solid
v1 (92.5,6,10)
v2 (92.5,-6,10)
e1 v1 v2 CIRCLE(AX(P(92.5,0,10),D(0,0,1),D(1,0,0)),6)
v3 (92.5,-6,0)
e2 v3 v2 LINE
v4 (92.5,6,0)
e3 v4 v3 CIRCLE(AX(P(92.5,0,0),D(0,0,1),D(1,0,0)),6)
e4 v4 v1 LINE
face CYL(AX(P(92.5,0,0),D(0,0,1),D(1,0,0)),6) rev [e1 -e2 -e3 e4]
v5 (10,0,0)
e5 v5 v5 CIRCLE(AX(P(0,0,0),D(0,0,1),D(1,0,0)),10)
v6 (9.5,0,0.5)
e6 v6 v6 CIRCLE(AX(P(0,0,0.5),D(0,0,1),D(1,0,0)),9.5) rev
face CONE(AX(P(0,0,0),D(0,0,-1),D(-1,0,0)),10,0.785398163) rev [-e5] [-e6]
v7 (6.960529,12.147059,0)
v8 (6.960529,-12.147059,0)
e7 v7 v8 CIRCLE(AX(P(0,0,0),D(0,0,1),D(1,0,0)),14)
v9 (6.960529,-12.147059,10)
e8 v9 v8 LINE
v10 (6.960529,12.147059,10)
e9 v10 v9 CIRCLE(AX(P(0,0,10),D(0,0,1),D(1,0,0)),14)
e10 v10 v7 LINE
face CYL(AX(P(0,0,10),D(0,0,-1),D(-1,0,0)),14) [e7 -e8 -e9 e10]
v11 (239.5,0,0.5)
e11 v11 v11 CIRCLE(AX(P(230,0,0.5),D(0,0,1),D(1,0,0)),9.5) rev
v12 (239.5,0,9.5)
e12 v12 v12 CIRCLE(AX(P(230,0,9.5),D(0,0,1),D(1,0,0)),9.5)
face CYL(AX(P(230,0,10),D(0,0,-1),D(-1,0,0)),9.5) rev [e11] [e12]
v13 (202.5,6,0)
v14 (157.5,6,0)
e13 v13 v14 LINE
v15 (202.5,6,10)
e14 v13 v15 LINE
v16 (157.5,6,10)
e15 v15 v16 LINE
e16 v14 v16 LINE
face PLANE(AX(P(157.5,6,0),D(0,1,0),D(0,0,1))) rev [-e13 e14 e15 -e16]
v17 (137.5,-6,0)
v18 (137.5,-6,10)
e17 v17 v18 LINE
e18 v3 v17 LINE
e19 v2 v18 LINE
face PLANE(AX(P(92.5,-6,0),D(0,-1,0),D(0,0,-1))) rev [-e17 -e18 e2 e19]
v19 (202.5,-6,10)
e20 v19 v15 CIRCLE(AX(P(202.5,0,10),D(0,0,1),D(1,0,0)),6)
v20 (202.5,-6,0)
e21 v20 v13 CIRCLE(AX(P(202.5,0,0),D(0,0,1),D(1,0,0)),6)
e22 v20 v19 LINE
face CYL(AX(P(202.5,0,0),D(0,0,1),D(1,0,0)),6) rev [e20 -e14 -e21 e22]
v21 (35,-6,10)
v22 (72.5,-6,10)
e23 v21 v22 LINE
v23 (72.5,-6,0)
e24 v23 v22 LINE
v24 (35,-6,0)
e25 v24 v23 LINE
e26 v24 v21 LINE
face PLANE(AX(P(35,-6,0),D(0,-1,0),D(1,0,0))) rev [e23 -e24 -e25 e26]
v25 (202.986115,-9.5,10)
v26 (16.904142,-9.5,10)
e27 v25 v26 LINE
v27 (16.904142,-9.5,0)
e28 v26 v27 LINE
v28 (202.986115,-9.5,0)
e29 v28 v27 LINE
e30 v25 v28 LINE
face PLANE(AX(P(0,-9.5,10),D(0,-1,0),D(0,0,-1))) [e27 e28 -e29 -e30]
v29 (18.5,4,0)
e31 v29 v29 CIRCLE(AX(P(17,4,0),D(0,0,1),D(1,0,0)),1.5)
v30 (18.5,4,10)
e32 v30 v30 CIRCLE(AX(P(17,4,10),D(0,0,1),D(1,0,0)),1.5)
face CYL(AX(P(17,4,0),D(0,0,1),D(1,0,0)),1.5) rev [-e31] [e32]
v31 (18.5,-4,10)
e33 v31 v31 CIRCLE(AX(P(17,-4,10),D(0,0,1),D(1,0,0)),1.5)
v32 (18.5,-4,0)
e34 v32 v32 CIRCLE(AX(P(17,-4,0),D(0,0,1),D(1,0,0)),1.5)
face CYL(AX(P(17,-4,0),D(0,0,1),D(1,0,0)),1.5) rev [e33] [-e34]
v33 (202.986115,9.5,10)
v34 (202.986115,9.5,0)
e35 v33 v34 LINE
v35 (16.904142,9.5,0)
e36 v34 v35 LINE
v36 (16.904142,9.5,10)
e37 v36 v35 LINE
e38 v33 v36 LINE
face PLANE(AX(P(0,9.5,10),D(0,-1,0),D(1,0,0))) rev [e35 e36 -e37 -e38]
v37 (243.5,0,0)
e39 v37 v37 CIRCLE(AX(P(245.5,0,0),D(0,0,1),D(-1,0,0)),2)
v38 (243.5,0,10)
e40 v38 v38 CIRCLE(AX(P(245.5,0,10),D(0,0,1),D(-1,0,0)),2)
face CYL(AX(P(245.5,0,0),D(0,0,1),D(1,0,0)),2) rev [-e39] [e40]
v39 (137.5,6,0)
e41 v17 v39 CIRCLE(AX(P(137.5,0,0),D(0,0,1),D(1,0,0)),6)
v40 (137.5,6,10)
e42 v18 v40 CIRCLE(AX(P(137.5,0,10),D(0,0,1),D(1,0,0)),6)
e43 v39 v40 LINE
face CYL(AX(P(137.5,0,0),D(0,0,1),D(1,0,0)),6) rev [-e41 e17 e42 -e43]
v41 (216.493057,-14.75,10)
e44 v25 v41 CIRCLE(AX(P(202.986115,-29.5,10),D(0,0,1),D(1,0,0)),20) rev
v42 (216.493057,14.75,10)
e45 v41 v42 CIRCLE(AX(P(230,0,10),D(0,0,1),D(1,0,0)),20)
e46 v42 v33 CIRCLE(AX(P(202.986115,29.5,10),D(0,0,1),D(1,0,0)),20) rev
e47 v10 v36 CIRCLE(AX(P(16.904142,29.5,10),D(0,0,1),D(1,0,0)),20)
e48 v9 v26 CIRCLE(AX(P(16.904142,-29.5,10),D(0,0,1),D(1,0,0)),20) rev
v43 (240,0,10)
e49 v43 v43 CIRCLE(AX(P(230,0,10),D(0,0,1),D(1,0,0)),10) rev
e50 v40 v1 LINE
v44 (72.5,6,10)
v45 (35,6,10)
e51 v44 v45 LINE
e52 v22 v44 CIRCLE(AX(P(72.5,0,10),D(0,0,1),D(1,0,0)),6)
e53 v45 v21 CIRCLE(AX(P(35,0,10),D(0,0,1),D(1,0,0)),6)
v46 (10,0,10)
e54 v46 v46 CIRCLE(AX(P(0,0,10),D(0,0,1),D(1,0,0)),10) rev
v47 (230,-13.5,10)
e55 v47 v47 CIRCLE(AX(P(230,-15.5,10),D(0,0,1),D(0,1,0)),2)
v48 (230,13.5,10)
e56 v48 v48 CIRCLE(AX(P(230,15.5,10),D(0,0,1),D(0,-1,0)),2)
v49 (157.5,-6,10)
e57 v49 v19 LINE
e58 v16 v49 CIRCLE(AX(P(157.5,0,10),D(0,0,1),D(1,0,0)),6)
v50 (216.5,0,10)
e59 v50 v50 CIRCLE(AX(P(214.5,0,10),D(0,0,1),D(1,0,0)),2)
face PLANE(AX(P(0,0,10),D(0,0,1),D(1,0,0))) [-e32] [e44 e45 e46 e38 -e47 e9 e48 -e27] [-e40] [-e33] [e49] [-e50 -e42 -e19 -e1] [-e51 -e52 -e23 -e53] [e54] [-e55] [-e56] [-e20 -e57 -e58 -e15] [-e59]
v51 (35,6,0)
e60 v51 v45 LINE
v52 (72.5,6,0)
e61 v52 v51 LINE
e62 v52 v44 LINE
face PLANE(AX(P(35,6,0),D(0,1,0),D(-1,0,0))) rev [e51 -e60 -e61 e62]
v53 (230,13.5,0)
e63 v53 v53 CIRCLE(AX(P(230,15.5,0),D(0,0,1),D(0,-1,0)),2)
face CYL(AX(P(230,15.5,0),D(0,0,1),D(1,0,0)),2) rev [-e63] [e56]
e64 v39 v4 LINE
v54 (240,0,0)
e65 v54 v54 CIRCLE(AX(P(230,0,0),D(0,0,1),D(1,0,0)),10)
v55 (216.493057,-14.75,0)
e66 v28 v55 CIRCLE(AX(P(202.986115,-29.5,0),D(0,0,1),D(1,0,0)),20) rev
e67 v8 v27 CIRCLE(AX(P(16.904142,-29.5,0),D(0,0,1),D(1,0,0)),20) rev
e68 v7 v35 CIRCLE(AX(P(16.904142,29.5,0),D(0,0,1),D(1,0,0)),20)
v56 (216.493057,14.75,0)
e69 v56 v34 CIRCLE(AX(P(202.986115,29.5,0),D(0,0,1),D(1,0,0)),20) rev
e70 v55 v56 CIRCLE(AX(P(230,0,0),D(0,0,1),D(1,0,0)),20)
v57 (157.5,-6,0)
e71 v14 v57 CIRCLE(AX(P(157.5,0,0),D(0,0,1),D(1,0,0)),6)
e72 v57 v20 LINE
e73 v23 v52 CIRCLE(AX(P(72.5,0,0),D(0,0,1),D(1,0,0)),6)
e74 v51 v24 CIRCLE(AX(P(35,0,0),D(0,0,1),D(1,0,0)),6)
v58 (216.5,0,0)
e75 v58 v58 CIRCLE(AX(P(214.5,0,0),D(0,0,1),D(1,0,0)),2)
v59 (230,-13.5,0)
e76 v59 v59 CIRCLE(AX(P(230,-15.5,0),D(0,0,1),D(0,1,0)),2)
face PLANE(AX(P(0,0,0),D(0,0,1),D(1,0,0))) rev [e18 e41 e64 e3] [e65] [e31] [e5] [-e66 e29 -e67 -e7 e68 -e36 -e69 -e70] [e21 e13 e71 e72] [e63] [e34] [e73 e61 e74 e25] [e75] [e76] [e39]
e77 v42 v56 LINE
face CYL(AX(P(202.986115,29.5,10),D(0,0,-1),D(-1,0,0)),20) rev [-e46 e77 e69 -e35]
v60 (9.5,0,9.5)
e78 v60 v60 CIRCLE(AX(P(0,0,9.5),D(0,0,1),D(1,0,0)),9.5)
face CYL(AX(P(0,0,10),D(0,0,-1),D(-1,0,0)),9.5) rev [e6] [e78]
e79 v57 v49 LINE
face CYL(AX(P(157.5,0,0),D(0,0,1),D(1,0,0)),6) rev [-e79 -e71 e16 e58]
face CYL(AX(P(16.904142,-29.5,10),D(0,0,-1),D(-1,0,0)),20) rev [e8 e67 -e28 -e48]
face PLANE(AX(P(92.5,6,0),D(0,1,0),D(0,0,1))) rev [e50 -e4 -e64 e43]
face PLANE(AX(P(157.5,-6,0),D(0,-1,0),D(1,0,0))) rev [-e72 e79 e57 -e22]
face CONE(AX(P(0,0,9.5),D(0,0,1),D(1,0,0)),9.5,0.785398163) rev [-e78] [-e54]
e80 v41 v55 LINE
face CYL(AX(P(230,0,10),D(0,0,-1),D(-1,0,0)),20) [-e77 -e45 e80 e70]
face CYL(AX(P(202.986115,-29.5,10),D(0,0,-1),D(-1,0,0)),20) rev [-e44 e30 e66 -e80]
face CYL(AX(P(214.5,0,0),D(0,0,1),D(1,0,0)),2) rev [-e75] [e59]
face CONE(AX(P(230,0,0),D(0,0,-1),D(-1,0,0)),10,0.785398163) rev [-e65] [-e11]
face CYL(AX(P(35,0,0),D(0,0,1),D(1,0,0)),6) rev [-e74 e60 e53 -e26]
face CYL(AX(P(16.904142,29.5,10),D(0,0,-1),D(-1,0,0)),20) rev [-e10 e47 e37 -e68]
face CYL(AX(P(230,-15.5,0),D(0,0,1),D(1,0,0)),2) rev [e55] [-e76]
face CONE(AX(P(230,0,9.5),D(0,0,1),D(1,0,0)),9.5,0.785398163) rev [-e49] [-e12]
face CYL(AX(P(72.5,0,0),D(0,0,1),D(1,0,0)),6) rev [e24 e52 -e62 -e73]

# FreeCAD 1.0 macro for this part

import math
import FreeCAD as App
import Part
import Sketcher
Q = App.Units.Quantity


def edges_at(feature, points):
    """Names of the edges that pass closest to the given points."""
    edges = feature.Shape.Edges
    near = lambda p: min(range(len(edges)), key=lambda i: edges[i].distToShape(Part.Vertex(*p))[0])
    return sorted({f"Edge{near(p) + 1}" for p in points})

doc = App.newDocument("Part")
body = doc.addObject("PartDesign::Body", "Body")

# Sketch on XY plane
sketch1 = doc.addObject("Sketcher::SketchObject", "Sketch")
body.addObject(sketch1)
sketch1.AttachmentSupport = (doc.XY_Plane, [""])
sketch1.MapMode = "FlatFace"
sketch1.addGeometry([
    Part.ArcOfCircle(Part.Circle(App.Vector(203, -29.5, 0), App.Vector(0, 0, 1), 20), math.radians(48), math.radians(90)),  # 0
    Part.ArcOfCircle(Part.Circle(App.Vector(230, 0, 0), App.Vector(0, 0, 1), 20), math.radians(-132), math.radians(132)),  # 1
    Part.ArcOfCircle(Part.Circle(App.Vector(203, 29.5, 0), App.Vector(0, 0, 1), 20), math.radians(-90), math.radians(-48)),  # 2
    Part.LineSegment(App.Vector(203, 9.5, 0), App.Vector(16.9, 9.5, 0)),  # 3
    Part.ArcOfCircle(Part.Circle(App.Vector(16.9, 29.5, 0), App.Vector(0, 0, 1), 20), math.radians(-120), math.radians(-90)),  # 4
    Part.ArcOfCircle(Part.Circle(App.Vector(0, 0, 0), App.Vector(0, 0, 1), 14), math.radians(60), math.radians(91)),  # 5
    Part.ArcOfCircle(Part.Circle(App.Vector(0, 0, 0), App.Vector(0, 0, 1), 14), math.radians(91), math.radians(284)),  # 6
    Part.ArcOfCircle(Part.Circle(App.Vector(0, 0, 0), App.Vector(0, 0, 1), 14), math.radians(-75.85), math.radians(-60.19)),  # 7
    Part.ArcOfCircle(Part.Circle(App.Vector(16.9, -29.5, 0), App.Vector(0, 0, 1), 20), math.radians(90), math.radians(120)),  # 8
    Part.LineSegment(App.Vector(16.9, -9.5, 0), App.Vector(203, -9.5, 0)),  # 9
    Part.Circle(App.Vector(0, 0, 0), App.Vector(0, 0, 1), 9.5),  # 10
    Part.Circle(App.Vector(230, 0, 0), App.Vector(0, 0, 1), 9.5),  # 11
], False)
sketch1.addConstraint([
    Sketcher.Constraint("Tangent", 0, 1, 1, 1),
    Sketcher.Constraint("Tangent", 1, 2, 2, 2),
    Sketcher.Constraint("Tangent", 2, 1, 3, 1),
    Sketcher.Constraint("Tangent", 3, 2, 4, 2),
    Sketcher.Constraint("Tangent", 4, 1, 5, 1),
    Sketcher.Constraint("Tangent", 5, 2, 6, 1),
    Sketcher.Constraint("Tangent", 6, 2, 7, 1),
    Sketcher.Constraint("Tangent", 7, 2, 8, 2),
    Sketcher.Constraint("Tangent", 8, 1, 9, 1),
    Sketcher.Constraint("Tangent", 9, 2, 0, 2),
    Sketcher.Constraint("Horizontal", 3),
    Sketcher.Constraint("Horizontal", 9),
    Sketcher.Constraint("Coincident", 5, 3, -1, 1),
    Sketcher.Constraint("Coincident", 7, 3, -1, 1),
    Sketcher.Constraint("Coincident", 10, 3, -1, 1),
    Sketcher.Constraint("Coincident", 11, 3, 1, 3),
    Sketcher.Constraint("Equal", 0, 1),
    Sketcher.Constraint("Equal", 1, 2),
    Sketcher.Constraint("Equal", 2, 4),
    Sketcher.Constraint("Equal", 4, 8),
    Sketcher.Constraint("Equal", 10, 11),
    Sketcher.Constraint("Symmetric", 0, 3, 2, 3, -1),
    Sketcher.Constraint("Diameter", 10, Q("19 mm")),
    Sketcher.Constraint("Radius", 0, Q("20 mm")),
    Sketcher.Constraint("Radius", 5, Q("14 mm")),
    Sketcher.Constraint("DistanceX", -1, 1, 1, 3, Q("230 mm")),
    Sketcher.Constraint("DistanceY", 0, 3, 2, 3, Q("59 mm")),
    Sketcher.Constraint("DistanceX", 5, 2, -1, 1, Q("0.229511 mm")),
    Sketcher.Constraint("DistanceX", -1, 1, 6, 2, Q("3.423256 mm")),
])
pad1 = doc.addObject("PartDesign::Pad", "Pad")
body.addObject(pad1)
pad1.Profile = sketch1
pad1.Length = 10
doc.recompute()

chamfer = doc.addObject("PartDesign::Chamfer", "Chamfer")
body.addObject(chamfer)
chamfer.Base = (pad1, edges_at(pad1, [(-9.5, 0, 0), (-9.5, 0, 10)]))
chamfer.Size = 0.5

# Sketch on XY plane
sketch2 = doc.addObject("Sketcher::SketchObject", "Sketch001")
body.addObject(sketch2)
sketch2.AttachmentSupport = (doc.XY_Plane, [""])
sketch2.MapMode = "FlatFace"
sketch2.AttachmentOffset = App.Placement(App.Vector(0, 0, 10), App.Rotation())
sketch2.addGeometry([
    Part.LineSegment(App.Vector(92, -6, 0), App.Vector(138, -6, 0)),  # 0
    Part.ArcOfCircle(Part.Circle(App.Vector(138, 0, 0), App.Vector(0, 0, 1), 6), math.radians(-90), math.radians(90)),  # 1
    Part.LineSegment(App.Vector(138, 6, 0), App.Vector(92, 6, 0)),  # 2
    Part.ArcOfCircle(Part.Circle(App.Vector(92, 0, 0), App.Vector(0, 0, 1), 6), math.radians(90), math.radians(270)),  # 3
    Part.LineSegment(App.Vector(158, -6, 0), App.Vector(202, -6, 0)),  # 4
    Part.ArcOfCircle(Part.Circle(App.Vector(202, 0, 0), App.Vector(0, 0, 1), 6), math.radians(-90), math.radians(90)),  # 5
    Part.LineSegment(App.Vector(202, 6, 0), App.Vector(158, 6, 0)),  # 6
    Part.ArcOfCircle(Part.Circle(App.Vector(158, 0, 0), App.Vector(0, 0, 1), 6), math.radians(90), math.radians(270)),  # 7
    Part.LineSegment(App.Vector(35, -6, 0), App.Vector(72, -6, 0)),  # 8
    Part.ArcOfCircle(Part.Circle(App.Vector(72, 0, 0), App.Vector(0, 0, 1), 6), math.radians(-90), math.radians(90)),  # 9
    Part.LineSegment(App.Vector(72, 6, 0), App.Vector(35, 6, 0)),  # 10
    Part.ArcOfCircle(Part.Circle(App.Vector(35, 0, 0), App.Vector(0, 0, 1), 6), math.radians(90), math.radians(270)),  # 11
], False)
sketch2.addConstraint([
    Sketcher.Constraint("Tangent", 0, 2, 1, 1),
    Sketcher.Constraint("Tangent", 1, 2, 2, 1),
    Sketcher.Constraint("Tangent", 2, 2, 3, 1),
    Sketcher.Constraint("Tangent", 3, 2, 0, 1),
    Sketcher.Constraint("Tangent", 4, 2, 5, 1),
    Sketcher.Constraint("Tangent", 5, 2, 6, 1),
    Sketcher.Constraint("Tangent", 6, 2, 7, 1),
    Sketcher.Constraint("Tangent", 7, 2, 4, 1),
    Sketcher.Constraint("Tangent", 8, 2, 9, 1),
    Sketcher.Constraint("Tangent", 9, 2, 10, 1),
    Sketcher.Constraint("Tangent", 10, 2, 11, 1),
    Sketcher.Constraint("Tangent", 11, 2, 8, 1),
    Sketcher.Constraint("Horizontal", 0),
    Sketcher.Constraint("Horizontal", 2),
    Sketcher.Constraint("Horizontal", 4),
    Sketcher.Constraint("Horizontal", 6),
    Sketcher.Constraint("Horizontal", 8),
    Sketcher.Constraint("Horizontal", 10),
    Sketcher.Constraint("Equal", 3, 5),
    Sketcher.Constraint("Equal", 7, 9),
    Sketcher.Constraint("PointOnObject", 1, 3, -1),
    Sketcher.Constraint("PointOnObject", 5, 3, -1),
    Sketcher.Constraint("PointOnObject", 9, 3, -1),
    Sketcher.Constraint("Equal", 2, 4),
    Sketcher.Constraint("Radius", 1, Q("6 mm")),
    Sketcher.Constraint("DistanceX", 0, 1, 0, 2, Q("45 mm")),
    Sketcher.Constraint("DistanceX", 8, 1, 8, 2, Q("37.5 mm")),
    Sketcher.Constraint("DistanceX", -1, 1, 11, 3, Q("35 mm")),
    Sketcher.Constraint("DistanceX", 1, 3, 5, 3, Q("65 mm")),
    Sketcher.Constraint("DistanceX", 9, 3, 3, 3, Q("20 mm")),
])
pocket1 = doc.addObject("PartDesign::Pocket", "Pocket")
body.addObject(pocket1)
pocket1.Profile = sketch2
pocket1.Length = 10

# Sketch on XY plane
sketch3 = doc.addObject("Sketcher::SketchObject", "Sketch002")
body.addObject(sketch3)
sketch3.AttachmentSupport = (doc.XY_Plane, [""])
sketch3.MapMode = "FlatFace"
sketch3.AttachmentOffset = App.Placement(App.Vector(0, 0, 10), App.Rotation())
sketch3.addGeometry([
    Part.Circle(App.Vector(245, 0, 0), App.Vector(0, 0, 1), 2),
    Part.Circle(App.Vector(237.5, 13, 0), App.Vector(0, 0, 1), 2),
    Part.Circle(App.Vector(222.5, 13, 0), App.Vector(0, 0, 1), 2),
], False)
sketch3.addConstraint([
    Sketcher.Constraint("Equal", 0, 1),
    Sketcher.Constraint("Equal", 1, 2),
    Sketcher.Constraint("PointOnObject", 0, 3, -1),
    Sketcher.Constraint("Horizontal", 1, 3, 2, 3),
    Sketcher.Constraint("Diameter", 0, Q("4 mm")),
    Sketcher.Constraint("DistanceX", -1, 1, 0, 3, Q("245 mm")),
    Sketcher.Constraint("DistanceX", 2, 3, 1, 3, Q("15 mm")),
    Sketcher.Constraint("DistanceX", -1, 1, 1, 3, Q("237.5 mm")),
    Sketcher.Constraint("DistanceY", -1, 1, 1, 3, Q("12.990381 mm")),
])
pocket2 = doc.addObject("PartDesign::Pocket", "Pocket001")
body.addObject(pocket2)
pocket2.Profile = sketch3
pocket2.Length = 10
doc.recompute()

chamfer2 = doc.addObject("PartDesign::Chamfer", "Chamfer001")
body.addObject(chamfer2)
chamfer2.Base = (pocket2, edges_at(pocket2, [(220.5, 0, 10)]))
chamfer2.Size = 0.5

# Sketch on XY plane
sketch4 = doc.addObject("Sketcher::SketchObject", "Sketch003")
body.addObject(sketch4)
sketch4.AttachmentSupport = (doc.XY_Plane, [""])
sketch4.MapMode = "FlatFace"
sketch4.AttachmentOffset = App.Placement(App.Vector(0, 0, 10), App.Rotation())
sketch4.addGeometry([
    Part.Circle(App.Vector(215, 0, 0), App.Vector(0, 0, 1), 2),
    Part.Circle(App.Vector(222.5, -13, 0), App.Vector(0, 0, 1), 2),
    Part.Circle(App.Vector(237.5, -13, 0), App.Vector(0, 0, 1), 2),
], False)
sketch4.addConstraint([
    Sketcher.Constraint("Equal", 0, 1),
    Sketcher.Constraint("Equal", 1, 2),
    Sketcher.Constraint("PointOnObject", 0, 3, -1),
    Sketcher.Constraint("Horizontal", 1, 3, 2, 3),
    Sketcher.Constraint("Diameter", 0, Q("4 mm")),
    Sketcher.Constraint("DistanceX", -1, 1, 0, 3, Q("215 mm")),
    Sketcher.Constraint("DistanceX", 1, 3, 2, 3, Q("15 mm")),
    Sketcher.Constraint("DistanceX", -1, 1, 1, 3, Q("222.5 mm")),
    Sketcher.Constraint("DistanceY", 1, 3, -1, 1, Q("12.990381 mm")),
])
pocket3 = doc.addObject("PartDesign::Pocket", "Pocket002")
body.addObject(pocket3)
pocket3.Profile = sketch4
pocket3.Length = 10
doc.recompute()

chamfer3 = doc.addObject("PartDesign::Chamfer", "Chamfer002")
body.addObject(chamfer3)
chamfer3.Base = (pocket3, edges_at(pocket3, [(220.5, 0, 0)]))
chamfer3.Size = 0.5

# Sketch on XY plane
sketch5 = doc.addObject("Sketcher::SketchObject", "Sketch004")
body.addObject(sketch5)
sketch5.AttachmentSupport = (doc.XY_Plane, [""])
sketch5.MapMode = "FlatFace"
sketch5.AttachmentOffset = App.Placement(App.Vector(0, 0, 10), App.Rotation())
sketch5.addGeometry([
    Part.Circle(App.Vector(215, 0, 0), App.Vector(0, 0, 1), 2),  # 0
    Part.Circle(App.Vector(222.5, 13, 0), App.Vector(0, 0, 1), 2),  # 1
    Part.Circle(App.Vector(237.5, 13, 0), App.Vector(0, 0, 1), 2),  # 2
    Part.Circle(App.Vector(245, 0, 0), App.Vector(0, 0, 1), 2),  # 3
    Part.Circle(App.Vector(237.5, -13, 0), App.Vector(0, 0, 1), 2),  # 4
    Part.Circle(App.Vector(222.5, -13, 0), App.Vector(0, 0, 1), 2),  # 5
], False)
sketch5.addConstraint([
    Sketcher.Constraint("Equal", 0, 1),
    Sketcher.Constraint("Equal", 1, 2),
    Sketcher.Constraint("Equal", 2, 3),
    Sketcher.Constraint("Equal", 3, 4),
    Sketcher.Constraint("Equal", 4, 5),
    Sketcher.Constraint("Symmetric", 2, 3, 4, 3, -1),
    Sketcher.Constraint("Symmetric", 1, 3, 5, 3, -1),
    Sketcher.Constraint("PointOnObject", 0, 3, -1),
    Sketcher.Constraint("PointOnObject", 3, 3, -1),
    Sketcher.Constraint("Horizontal", 1, 3, 2, 3),
    Sketcher.Constraint("Diameter", 0, Q("4 mm")),
    Sketcher.Constraint("DistanceX", -1, 1, 0, 3, Q("215 mm")),
    Sketcher.Constraint("DistanceX", -1, 1, 3, 3, Q("245 mm")),
    Sketcher.Constraint("DistanceX", 1, 3, 2, 3, Q("15 mm")),
    Sketcher.Constraint("DistanceX", -1, 1, 1, 3, Q("222.5 mm")),
    Sketcher.Constraint("DistanceY", -1, 1, 1, 3, Q("12.990381 mm")),
])
pad2 = doc.addObject("PartDesign::Pad", "Pad001")
body.addObject(pad2)
pad2.Profile = sketch5
pad2.Length = 10
pad2.Reversed = True

# Sketch on XY plane
sketch6 = doc.addObject("Sketcher::SketchObject", "Sketch005")
body.addObject(sketch6)
sketch6.AttachmentSupport = (doc.XY_Plane, [""])
sketch6.MapMode = "FlatFace"
sketch6.AttachmentOffset = App.Placement(App.Vector(0, 0, 10), App.Rotation())
sketch6.addGeometry(Part.Circle(App.Vector(214.5, 0, 0), App.Vector(0, 0, 1), 2), False)
sketch6.addConstraint([
    Sketcher.Constraint("PointOnObject", 0, 3, -1),
    Sketcher.Constraint("Diameter", 0, Q("4 mm")),
    Sketcher.Constraint("DistanceX", -1, 1, 0, 3, Q("214.5 mm")),
])
pocket4 = doc.addObject("PartDesign::Pocket", "Pocket003")
body.addObject(pocket4)
pocket4.Profile = sketch6
pocket4.Length = 10
doc.recompute()

datumline = doc.addObject("PartDesign::Line", "DatumLine")
body.addObject(datumline)
datumline.Placement = App.Placement(App.Vector(230, 0, 0), App.Rotation(App.Vector(0, 0, 1), App.Vector(0, 0, 1)))
polarpattern = doc.addObject("PartDesign::PolarPattern", "PolarPattern")
body.addObject(polarpattern)
polarpattern.Originals = [pocket4]
polarpattern.Axis = (datumline, [""])
polarpattern.Angle = 360
polarpattern.Occurrences = 4
body.Tip = polarpattern

# Sketch on XY plane
sketch7 = doc.addObject("Sketcher::SketchObject", "Sketch006")
body.addObject(sketch7)
sketch7.AttachmentSupport = (doc.XY_Plane, [""])
sketch7.MapMode = "FlatFace"
sketch7.AttachmentOffset = App.Placement(App.Vector(0, 0, 10), App.Rotation())
sketch7.addGeometry([
    Part.Circle(App.Vector(17, 4, 0), App.Vector(0, 0, 1), 1.5),
    Part.Circle(App.Vector(17, -4, 0), App.Vector(0, 0, 1), 1.5),
], False)
sketch7.addConstraint([
    Sketcher.Constraint("Equal", 0, 1),
    Sketcher.Constraint("Symmetric", 0, 3, 1, 3, -1),
    Sketcher.Constraint("Diameter", 0, Q("3 mm")),
    Sketcher.Constraint("DistanceX", -1, 1, 0, 3, Q("17 mm")),
    Sketcher.Constraint("DistanceY", -1, 1, 0, 3, Q("4 mm")),
])
pocket5 = doc.addObject("PartDesign::Pocket", "Pocket004")
body.addObject(pocket5)
pocket5.Profile = sketch7
pocket5.Type = "ThroughAll"

doc.recompute()
